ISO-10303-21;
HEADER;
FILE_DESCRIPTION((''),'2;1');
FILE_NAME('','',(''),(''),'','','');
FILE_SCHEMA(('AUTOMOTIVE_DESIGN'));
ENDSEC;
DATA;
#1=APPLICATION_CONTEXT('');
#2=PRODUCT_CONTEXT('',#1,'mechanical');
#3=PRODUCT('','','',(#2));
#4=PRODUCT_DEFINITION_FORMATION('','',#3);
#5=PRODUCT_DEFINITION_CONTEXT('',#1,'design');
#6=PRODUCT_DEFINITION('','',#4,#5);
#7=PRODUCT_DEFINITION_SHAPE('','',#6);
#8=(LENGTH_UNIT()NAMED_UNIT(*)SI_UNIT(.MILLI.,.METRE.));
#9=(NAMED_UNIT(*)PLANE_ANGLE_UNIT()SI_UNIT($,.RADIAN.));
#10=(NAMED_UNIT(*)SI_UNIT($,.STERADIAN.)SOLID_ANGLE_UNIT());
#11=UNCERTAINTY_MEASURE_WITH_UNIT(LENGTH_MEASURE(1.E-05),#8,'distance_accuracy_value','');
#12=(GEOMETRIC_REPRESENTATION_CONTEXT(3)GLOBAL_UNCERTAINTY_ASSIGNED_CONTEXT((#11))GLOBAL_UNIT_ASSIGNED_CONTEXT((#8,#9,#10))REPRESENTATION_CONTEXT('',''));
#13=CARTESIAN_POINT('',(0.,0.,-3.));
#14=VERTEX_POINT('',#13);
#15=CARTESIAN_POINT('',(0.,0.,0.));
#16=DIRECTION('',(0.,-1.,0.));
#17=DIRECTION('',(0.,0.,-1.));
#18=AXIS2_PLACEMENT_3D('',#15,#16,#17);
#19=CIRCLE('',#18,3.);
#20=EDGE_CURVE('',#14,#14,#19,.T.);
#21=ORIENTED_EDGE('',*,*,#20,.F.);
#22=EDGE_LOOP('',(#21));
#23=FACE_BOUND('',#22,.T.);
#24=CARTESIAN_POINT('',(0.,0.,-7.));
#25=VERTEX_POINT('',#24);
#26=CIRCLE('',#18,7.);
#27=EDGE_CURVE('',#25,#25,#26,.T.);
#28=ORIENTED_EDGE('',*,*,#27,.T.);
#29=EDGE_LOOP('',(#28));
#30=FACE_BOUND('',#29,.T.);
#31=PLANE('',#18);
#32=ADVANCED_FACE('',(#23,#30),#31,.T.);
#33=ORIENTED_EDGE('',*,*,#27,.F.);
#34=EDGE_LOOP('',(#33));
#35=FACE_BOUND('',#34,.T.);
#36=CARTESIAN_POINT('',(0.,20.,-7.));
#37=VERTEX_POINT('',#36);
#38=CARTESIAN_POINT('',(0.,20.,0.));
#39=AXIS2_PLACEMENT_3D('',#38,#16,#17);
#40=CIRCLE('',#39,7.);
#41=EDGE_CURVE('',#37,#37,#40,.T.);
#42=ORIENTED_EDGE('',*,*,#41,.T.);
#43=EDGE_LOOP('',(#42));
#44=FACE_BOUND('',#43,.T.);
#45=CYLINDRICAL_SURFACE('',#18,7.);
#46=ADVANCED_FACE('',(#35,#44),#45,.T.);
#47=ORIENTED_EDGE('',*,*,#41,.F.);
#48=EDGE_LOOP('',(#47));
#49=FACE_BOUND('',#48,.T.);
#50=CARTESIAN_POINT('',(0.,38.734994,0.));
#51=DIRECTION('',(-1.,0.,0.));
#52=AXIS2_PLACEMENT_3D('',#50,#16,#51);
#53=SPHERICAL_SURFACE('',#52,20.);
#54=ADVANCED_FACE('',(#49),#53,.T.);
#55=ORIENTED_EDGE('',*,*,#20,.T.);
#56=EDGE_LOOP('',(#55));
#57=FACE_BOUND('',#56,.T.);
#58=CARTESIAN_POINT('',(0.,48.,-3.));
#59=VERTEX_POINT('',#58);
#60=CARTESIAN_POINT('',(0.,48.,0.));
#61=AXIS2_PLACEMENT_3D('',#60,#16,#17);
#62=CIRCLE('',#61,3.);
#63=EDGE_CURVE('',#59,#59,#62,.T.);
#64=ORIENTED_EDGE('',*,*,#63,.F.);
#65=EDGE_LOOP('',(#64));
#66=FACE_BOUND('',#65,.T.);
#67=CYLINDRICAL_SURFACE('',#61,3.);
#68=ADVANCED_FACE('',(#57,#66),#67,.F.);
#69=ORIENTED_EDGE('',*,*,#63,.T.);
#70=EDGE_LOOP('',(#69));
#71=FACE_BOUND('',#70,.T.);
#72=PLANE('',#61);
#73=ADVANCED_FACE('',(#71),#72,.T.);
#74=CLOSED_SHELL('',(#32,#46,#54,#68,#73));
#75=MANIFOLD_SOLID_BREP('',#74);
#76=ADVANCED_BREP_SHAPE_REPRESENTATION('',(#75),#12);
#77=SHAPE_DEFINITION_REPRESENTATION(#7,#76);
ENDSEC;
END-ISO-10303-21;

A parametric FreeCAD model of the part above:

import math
import FreeCAD as App
import Part
import Sketcher

V = App.Vector
Q = App.Units.Quantity

doc = App.newDocument("Part")
body = doc.addObject("PartDesign::Body", "Body")

# Sketch on XY plane
sketch1 = body.newObject("Sketcher::SketchObject", "Sketch")
sketch1.AttachmentSupport = (doc.getObject("XY_Plane"), [""])
sketch1.MapMode = "FlatFace"
sketch1.addGeometry([
    Part.LineSegment(V(0, 0, 0), V(0, 59, 0)),
    Part.ArcOfCircle(Part.Circle(V(0, 39, 0), V(0, 0, 1), 20), math.radians(90), math.radians(250)),
    Part.LineSegment(V(-7, 20, 0), V(-7, 0, 0)),
    Part.LineSegment(V(-7, 0, 0), V(0, 0, 0)),
], False)
sketch1.addConstraint([
    Sketcher.Constraint("Coincident", 0, 2, 1, 1),
    Sketcher.Constraint("Coincident", 1, 2, 2, 1),
    Sketcher.Constraint("Coincident", 2, 2, 3, 1),
    Sketcher.Constraint("Coincident", 3, 2, 0, 1),
    Sketcher.Constraint("Vertical", 0),
    Sketcher.Constraint("Vertical", 2),
    Sketcher.Constraint("Horizontal", 3),
    Sketcher.Constraint("Coincident", 3, 2, -1, 1),
    Sketcher.Constraint("PointOnObject", 1, 3, -2),
    Sketcher.Constraint("Radius", 1, Q("20 mm")),
    Sketcher.Constraint("DistanceX", 3, 1, 3, 2, Q("7 mm")),
    Sketcher.Constraint("DistanceY", 2, 2, 2, 1, Q("20 mm")),
])
revolution = body.newObject("PartDesign::Revolution", "Revolution")
revolution.Profile = sketch1
revolution.ReferenceAxis = (sketch1, ["V_Axis"])
revolution.Angle = 360

# Sketch on XZ plane
sketch2 = body.newObject("Sketcher::SketchObject", "Sketch001")
sketch2.AttachmentSupport = (doc.getObject("XZ_Plane"), [""])
sketch2.MapMode = "FlatFace"
sketch2.addGeometry(Part.Circle(V(0, 0, 0), V(0, 0, 1), 3), False)
sketch2.addConstraint([
    Sketcher.Constraint("Coincident", 0, 3, -1, 1),
    Sketcher.Constraint("Diameter", 0, Q("6 mm")),
])
pocket1 = body.newObject("PartDesign::Pocket", "Pocket")
pocket1.Profile = sketch2
pocket1.Length = 48

doc.recompute()
